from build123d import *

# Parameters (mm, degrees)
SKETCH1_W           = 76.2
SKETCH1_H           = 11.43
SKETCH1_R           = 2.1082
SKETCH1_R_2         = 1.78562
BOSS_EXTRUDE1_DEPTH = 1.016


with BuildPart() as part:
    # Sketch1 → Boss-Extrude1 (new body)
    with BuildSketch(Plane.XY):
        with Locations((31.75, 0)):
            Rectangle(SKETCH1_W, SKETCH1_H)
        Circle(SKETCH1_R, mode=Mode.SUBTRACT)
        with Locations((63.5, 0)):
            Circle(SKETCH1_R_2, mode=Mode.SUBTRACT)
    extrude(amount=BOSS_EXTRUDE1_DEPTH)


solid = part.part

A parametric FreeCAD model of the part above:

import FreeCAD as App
import Part
import Sketcher
from FreeCAD import Vector
Q = App.Units.Quantity

doc = App.newDocument("Part")
body = doc.addObject("PartDesign::Body", "Body")

sketch1 = body.newObject("Sketcher::SketchObject", "Sketch")
sketch1.AttachmentSupport = (doc.getObject("XY_Plane"), [""])
sketch1.MapMode = "FlatFace"
sketch1.addGeometry([
    Part.LineSegment(Vector(-6.3, 5.7, 0), Vector(-6.3, -5.7, 0)),
    Part.LineSegment(Vector(-6.3, -5.7, 0), Vector(69.8, -5.7, 0)),
    Part.LineSegment(Vector(69.8, -5.7, 0), Vector(69.8, 5.7, 0)),
    Part.LineSegment(Vector(69.8, 5.7, 0), Vector(-6.3, 5.7, 0)),
    Part.Circle(Vector(0, 0, 0), Vector(0, 0, 1), 2.1),
    Part.Circle(Vector(63.5, 0, 0), Vector(0, 0, 1), 1.8),
], False)
sketch1.addConstraint([
    Sketcher.Constraint("Coincident", 0, 2, 1, 1),
    Sketcher.Constraint("Coincident", 1, 2, 2, 1),
    Sketcher.Constraint("Coincident", 2, 2, 3, 1),
    Sketcher.Constraint("Coincident", 3, 2, 0, 1),
    Sketcher.Constraint("Vertical", 0),
    Sketcher.Constraint("Horizontal", 1),
    Sketcher.Constraint("Vertical", 2),
    Sketcher.Constraint("Horizontal", 3),
    Sketcher.Constraint("Coincident", 4, 3, -1, 1),
    Sketcher.Constraint("PointOnObject", 5, 3, -1),
    Sketcher.Constraint("DistanceX", 1, 1, 1, 2, Q("3 in")),
    Sketcher.Constraint("Diameter", 4, Q("0.166 in")),
    Sketcher.Constraint("Diameter", 5, Q("0.1406 in")),
    Sketcher.Constraint("DistanceY", 0, 2, 0, 1, Q("0.45 in")),
    Sketcher.Constraint("DistanceX", -1, 1, 5, 3, Q("2.5 in")),
    Sketcher.Constraint("DistanceX", 0, 2, -1, 1, Q("0.25 in")),
    Sketcher.Constraint("DistanceY", 0, 2, -1, 1, Q("0.225 in")),
])
pad1 = body.newObject("PartDesign::Pad", "Pad")
pad1.Profile = sketch1
pad1.Length = Q("0.04 in")

doc.recompute()
